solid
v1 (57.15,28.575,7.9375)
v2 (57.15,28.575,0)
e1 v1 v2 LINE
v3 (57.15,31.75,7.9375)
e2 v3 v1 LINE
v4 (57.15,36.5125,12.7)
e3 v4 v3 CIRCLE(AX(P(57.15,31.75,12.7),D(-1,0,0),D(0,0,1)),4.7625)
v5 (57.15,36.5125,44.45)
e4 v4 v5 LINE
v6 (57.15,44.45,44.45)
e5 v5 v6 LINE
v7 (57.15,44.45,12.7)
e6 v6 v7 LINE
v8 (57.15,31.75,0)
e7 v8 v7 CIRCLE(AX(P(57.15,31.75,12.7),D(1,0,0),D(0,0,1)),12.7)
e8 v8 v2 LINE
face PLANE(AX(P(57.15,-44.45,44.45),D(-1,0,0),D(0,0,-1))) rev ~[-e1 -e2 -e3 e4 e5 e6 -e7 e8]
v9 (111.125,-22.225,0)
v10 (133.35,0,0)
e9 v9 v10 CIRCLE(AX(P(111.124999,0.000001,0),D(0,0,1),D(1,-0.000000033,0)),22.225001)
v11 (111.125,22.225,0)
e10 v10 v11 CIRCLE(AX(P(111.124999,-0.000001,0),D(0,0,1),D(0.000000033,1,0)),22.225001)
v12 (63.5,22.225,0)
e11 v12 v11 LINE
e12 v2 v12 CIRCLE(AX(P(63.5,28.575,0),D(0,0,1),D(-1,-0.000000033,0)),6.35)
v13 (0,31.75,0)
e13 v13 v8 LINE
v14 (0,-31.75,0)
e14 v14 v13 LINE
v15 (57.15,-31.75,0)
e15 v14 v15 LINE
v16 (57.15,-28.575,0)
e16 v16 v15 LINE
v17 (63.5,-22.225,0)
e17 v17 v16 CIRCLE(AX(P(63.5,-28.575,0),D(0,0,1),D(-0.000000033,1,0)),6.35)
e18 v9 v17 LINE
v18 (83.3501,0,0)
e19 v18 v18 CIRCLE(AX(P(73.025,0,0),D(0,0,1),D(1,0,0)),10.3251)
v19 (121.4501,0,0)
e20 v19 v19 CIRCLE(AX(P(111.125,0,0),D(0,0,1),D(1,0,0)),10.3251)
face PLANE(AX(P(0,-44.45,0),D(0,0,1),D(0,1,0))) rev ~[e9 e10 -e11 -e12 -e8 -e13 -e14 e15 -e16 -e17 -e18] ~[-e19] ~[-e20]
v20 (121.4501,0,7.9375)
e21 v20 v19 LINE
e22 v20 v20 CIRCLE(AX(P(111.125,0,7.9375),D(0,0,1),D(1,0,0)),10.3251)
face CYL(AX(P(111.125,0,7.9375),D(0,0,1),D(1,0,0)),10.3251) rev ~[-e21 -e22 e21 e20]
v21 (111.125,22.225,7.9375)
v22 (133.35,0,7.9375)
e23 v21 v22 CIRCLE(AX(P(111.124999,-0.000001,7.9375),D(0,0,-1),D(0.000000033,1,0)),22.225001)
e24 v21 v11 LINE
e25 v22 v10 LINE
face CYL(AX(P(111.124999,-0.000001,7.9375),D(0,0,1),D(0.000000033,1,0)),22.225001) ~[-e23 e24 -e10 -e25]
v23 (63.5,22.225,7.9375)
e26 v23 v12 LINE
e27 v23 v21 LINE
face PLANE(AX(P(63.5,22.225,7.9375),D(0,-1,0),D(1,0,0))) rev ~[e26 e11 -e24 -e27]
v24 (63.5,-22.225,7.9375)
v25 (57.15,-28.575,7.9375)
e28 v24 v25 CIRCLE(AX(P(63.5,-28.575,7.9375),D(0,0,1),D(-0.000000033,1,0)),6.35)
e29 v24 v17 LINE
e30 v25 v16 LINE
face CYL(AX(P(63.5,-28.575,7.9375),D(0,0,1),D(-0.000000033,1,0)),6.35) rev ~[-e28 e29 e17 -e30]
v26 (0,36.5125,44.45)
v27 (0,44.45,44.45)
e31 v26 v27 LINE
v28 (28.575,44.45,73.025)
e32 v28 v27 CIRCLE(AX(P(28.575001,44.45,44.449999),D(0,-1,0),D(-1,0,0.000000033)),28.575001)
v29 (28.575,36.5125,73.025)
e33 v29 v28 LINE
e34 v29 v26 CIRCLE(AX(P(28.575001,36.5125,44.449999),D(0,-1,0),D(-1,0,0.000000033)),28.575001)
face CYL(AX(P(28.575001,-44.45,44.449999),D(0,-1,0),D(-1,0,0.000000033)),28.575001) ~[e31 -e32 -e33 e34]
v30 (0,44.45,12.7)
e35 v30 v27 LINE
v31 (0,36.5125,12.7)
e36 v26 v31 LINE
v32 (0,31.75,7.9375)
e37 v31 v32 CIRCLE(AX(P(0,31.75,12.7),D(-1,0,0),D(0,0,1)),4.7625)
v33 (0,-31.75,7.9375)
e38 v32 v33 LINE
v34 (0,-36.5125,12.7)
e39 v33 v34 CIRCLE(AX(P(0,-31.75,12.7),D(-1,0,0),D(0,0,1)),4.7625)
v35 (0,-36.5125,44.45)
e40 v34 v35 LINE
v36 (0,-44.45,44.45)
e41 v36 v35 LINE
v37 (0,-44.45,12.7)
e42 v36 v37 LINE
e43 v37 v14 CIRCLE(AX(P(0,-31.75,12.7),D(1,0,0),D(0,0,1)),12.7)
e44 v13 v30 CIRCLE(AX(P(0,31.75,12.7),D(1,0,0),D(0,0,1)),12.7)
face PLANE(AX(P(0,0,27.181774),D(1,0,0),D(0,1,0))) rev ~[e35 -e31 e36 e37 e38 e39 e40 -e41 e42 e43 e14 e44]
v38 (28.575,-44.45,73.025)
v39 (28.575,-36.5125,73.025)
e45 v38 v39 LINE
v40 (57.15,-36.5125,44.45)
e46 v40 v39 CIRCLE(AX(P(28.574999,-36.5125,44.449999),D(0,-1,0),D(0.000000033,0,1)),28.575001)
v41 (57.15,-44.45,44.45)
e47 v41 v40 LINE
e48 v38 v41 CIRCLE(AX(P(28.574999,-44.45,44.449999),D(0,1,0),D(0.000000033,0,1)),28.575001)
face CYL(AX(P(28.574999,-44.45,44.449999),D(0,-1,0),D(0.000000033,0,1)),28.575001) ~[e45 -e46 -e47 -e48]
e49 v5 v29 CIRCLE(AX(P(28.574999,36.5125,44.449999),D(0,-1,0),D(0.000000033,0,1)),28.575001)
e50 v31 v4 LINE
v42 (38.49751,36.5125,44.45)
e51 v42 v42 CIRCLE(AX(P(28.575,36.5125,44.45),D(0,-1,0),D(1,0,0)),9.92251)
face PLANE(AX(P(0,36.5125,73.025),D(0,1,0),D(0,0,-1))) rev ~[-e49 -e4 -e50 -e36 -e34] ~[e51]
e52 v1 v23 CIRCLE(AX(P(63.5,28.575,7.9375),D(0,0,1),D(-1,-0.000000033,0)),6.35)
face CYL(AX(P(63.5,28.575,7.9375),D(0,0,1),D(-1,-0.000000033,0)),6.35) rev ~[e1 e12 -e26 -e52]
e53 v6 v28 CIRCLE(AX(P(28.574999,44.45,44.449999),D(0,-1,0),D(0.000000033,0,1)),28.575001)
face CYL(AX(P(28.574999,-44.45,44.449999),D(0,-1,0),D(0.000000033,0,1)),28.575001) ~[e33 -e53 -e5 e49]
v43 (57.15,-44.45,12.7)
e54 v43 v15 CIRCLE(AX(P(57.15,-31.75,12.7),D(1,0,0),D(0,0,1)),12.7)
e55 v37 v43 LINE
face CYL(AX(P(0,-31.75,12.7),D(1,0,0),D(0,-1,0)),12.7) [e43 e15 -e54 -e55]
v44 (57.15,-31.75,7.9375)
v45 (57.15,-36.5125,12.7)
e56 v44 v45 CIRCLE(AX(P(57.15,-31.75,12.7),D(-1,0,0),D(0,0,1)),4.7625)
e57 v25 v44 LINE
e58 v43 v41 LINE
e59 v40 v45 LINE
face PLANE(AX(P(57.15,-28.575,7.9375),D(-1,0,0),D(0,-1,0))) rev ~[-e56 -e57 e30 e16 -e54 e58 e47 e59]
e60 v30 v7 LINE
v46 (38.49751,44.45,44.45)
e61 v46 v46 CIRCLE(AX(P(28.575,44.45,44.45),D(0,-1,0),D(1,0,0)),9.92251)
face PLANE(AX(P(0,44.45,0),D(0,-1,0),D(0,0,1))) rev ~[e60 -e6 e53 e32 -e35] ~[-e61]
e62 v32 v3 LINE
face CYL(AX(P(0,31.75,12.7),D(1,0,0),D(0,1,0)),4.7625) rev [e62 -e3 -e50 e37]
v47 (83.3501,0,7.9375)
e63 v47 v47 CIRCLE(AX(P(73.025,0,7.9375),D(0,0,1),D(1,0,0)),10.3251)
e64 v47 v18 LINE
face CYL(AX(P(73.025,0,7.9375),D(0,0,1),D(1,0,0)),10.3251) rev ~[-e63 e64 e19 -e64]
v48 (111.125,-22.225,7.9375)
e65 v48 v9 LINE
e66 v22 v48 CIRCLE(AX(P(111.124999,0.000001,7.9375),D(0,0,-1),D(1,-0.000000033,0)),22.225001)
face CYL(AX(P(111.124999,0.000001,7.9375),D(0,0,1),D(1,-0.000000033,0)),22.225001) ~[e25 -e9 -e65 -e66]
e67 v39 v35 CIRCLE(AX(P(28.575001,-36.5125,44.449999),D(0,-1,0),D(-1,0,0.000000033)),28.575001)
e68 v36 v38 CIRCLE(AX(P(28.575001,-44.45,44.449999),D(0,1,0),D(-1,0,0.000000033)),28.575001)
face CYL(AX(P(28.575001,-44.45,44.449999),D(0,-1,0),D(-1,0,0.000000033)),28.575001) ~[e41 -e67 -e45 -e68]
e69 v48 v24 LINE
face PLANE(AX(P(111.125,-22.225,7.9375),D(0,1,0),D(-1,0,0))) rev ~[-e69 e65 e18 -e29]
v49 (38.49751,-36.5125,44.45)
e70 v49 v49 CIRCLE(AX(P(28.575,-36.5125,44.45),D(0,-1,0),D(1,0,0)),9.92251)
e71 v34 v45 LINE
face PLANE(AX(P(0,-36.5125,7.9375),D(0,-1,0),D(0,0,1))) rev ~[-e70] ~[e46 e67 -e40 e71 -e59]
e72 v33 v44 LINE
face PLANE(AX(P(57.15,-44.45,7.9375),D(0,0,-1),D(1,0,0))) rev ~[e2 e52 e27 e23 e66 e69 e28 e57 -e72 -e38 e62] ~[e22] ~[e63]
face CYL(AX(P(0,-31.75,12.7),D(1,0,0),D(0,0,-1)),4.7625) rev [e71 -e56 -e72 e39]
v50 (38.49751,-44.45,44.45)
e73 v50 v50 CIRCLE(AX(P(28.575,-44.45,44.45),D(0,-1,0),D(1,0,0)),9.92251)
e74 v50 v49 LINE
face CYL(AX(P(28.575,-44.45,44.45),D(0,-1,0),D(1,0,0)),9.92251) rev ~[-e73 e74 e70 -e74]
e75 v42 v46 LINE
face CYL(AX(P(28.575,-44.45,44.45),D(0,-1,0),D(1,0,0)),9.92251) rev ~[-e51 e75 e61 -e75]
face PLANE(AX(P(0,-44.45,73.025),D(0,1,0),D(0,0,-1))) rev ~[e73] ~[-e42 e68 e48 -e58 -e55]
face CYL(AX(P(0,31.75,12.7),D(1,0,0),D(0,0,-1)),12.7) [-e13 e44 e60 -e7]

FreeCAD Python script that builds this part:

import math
import FreeCAD as App
import Part
import Sketcher

V = App.Vector
Q = App.Units.Quantity


def edges_at(feature, points):
    """Names of the edges that pass closest to the given points."""
    edges = feature.Shape.Edges
    near = lambda p: min(range(len(edges)), key=lambda i: edges[i].distToShape(Part.Vertex(*p))[0])
    return sorted({f"Edge{near(p) + 1}" for p in points})

doc = App.newDocument("Part")
body = doc.addObject("PartDesign::Body", "Body")

# Sketch on YZ plane
sketch1 = body.newObject("Sketcher::SketchObject", "Sketch")
sketch1.AttachmentSupport = (doc.getObject("YZ_Plane"), [""])
sketch1.MapMode = "FlatFace"
sketch1.addGeometry(Part.LineSegment(V(44, 0, 0), V(44, 73, 0)), False)
sketch1.addGeometry(Part.LineSegment(V(44, 73, 0), V(37, 73, 0)), False)
sketch1.addGeometry(Part.LineSegment(V(37, 73, 0), V(37, 8, 0)), False)
sketch1.addGeometry(Part.LineSegment(V(37, 8, 0), V(-37, 8, 0)), False)
sketch1.addGeometry(Part.LineSegment(V(-37, 8, 0), V(-37, 73, 0)), False)
sketch1.addGeometry(Part.LineSegment(V(-37, 73, 0), V(-44, 73, 0)), False)
sketch1.addGeometry(Part.LineSegment(V(-44, 73, 0), V(-44, 0, 0)), False)
sketch1.addGeometry(Part.LineSegment(V(-44, 0, 0), V(44, 0, 0)), False)
sketch1.addConstraint(Sketcher.Constraint("Coincident", 0, 2, 1, 1))
sketch1.addConstraint(Sketcher.Constraint("Coincident", 1, 2, 2, 1))
sketch1.addConstraint(Sketcher.Constraint("Coincident", 2, 2, 3, 1))
sketch1.addConstraint(Sketcher.Constraint("Coincident", 3, 2, 4, 1))
sketch1.addConstraint(Sketcher.Constraint("Coincident", 4, 2, 5, 1))
sketch1.addConstraint(Sketcher.Constraint("Coincident", 5, 2, 6, 1))
sketch1.addConstraint(Sketcher.Constraint("Coincident", 6, 2, 7, 1))
sketch1.addConstraint(Sketcher.Constraint("Coincident", 7, 2, 0, 1))
sketch1.addConstraint(Sketcher.Constraint("Vertical", 0))
sketch1.addConstraint(Sketcher.Constraint("Horizontal", 1))
sketch1.addConstraint(Sketcher.Constraint("Vertical", 2))
sketch1.addConstraint(Sketcher.Constraint("Horizontal", 3))
sketch1.addConstraint(Sketcher.Constraint("Vertical", 4))
sketch1.addConstraint(Sketcher.Constraint("Horizontal", 5))
sketch1.addConstraint(Sketcher.Constraint("Vertical", 6))
sketch1.addConstraint(Sketcher.Constraint("Horizontal", 7))
sketch1.addConstraint(Sketcher.Constraint("Symmetric", 6, 2, 7, 2, -1, 1))
sketch1.addConstraint(Sketcher.Constraint("Symmetric", 1, 2, 4, 2, -2))
sketch1.addConstraint(Sketcher.Constraint("Equal", 3, 0))
sketch1.addConstraint(Sketcher.Constraint("DistanceX", 7, 1, 7, 2, Q("3.5 in")))
sketch1.addConstraint(Sketcher.Constraint("DistanceX", 1, 2, 1, 1, Q("0.3125 in")))
sketch1.addConstraint(Sketcher.Constraint("DistanceY", 2, 2, 2, 1, Q("2.5625 in")))
pad1 = body.newObject("PartDesign::Pad", "Pad")
pad1.Profile = sketch1
pad1.Length = Q("5.25 in")

# Sketch on XZ plane
sketch2 = body.newObject("Sketcher::SketchObject", "Sketch001")
sketch2.AttachmentSupport = (doc.getObject("XZ_Plane"), [""])
sketch2.MapMode = "FlatFace"
sketch2.AttachmentOffset = App.Placement(V(0, 0, 1.75 * 25.4), App.Rotation())
sketch2.addGeometry(Part.ArcOfCircle(Part.Circle(V(29, 44, 0), V(0, 0, 1), 29), math.radians(90), math.radians(180)), False)
sketch2.addGeometry(Part.LineSegment(V(29, 73, 0), V(0, 73, 0)), False)
sketch2.addGeometry(Part.LineSegment(V(0, 73, 0), V(0, 44, 0)), False)
sketch2.addGeometry(Part.ArcOfCircle(Part.Circle(V(29, 44, 0), V(0, 0, 1), 29), math.radians(0), math.radians(90)), False)
sketch2.addGeometry(Part.LineSegment(V(57, 44, 0), V(57, 8, 0)), False)
sketch2.addGeometry(Part.LineSegment(V(57, 8, 0), V(133, 8, 0)), False)
sketch2.addGeometry(Part.LineSegment(V(133, 8, 0), V(133, 73, 0)), False)
sketch2.addGeometry(Part.LineSegment(V(133, 73, 0), V(29, 73, 0)), False)
sketch2.addConstraint(Sketcher.Constraint("Tangent", 0, 1, 1, 1))
sketch2.addConstraint(Sketcher.Constraint("Coincident", 1, 2, 2, 1))
sketch2.addConstraint(Sketcher.Constraint("Tangent", 2, 2, 0, 2))
sketch2.addConstraint(Sketcher.Constraint("Tangent", 3, 1, 4, 1))
sketch2.addConstraint(Sketcher.Constraint("Coincident", 4, 2, 5, 1))
sketch2.addConstraint(Sketcher.Constraint("Coincident", 5, 2, 6, 1))
sketch2.addConstraint(Sketcher.Constraint("Coincident", 6, 2, 7, 1))
sketch2.addConstraint(Sketcher.Constraint("Tangent", 7, 2, 3, 2))
sketch2.addConstraint(Sketcher.Constraint("Horizontal", 1))
sketch2.addConstraint(Sketcher.Constraint("Vertical", 2))
sketch2.addConstraint(Sketcher.Constraint("Vertical", 4))
sketch2.addConstraint(Sketcher.Constraint("Horizontal", 5))
sketch2.addConstraint(Sketcher.Constraint("Vertical", 6))
sketch2.addConstraint(Sketcher.Constraint("Horizontal", 7))
sketch2.addConstraint(Sketcher.Constraint("Coincident", 3, 3, 0, 3))
sketch2.addConstraint(Sketcher.Constraint("Equal", 0, 3))
sketch2.addConstraint(Sketcher.Constraint("PointOnObject", 1, 2, -2))
sketch2.addConstraint(Sketcher.Constraint("DistanceX", 5, 1, 5, 2, Q("3 in")))
sketch2.addConstraint(Sketcher.Constraint("Radius", 0, Q("1.125 in")))
sketch2.addConstraint(Sketcher.Constraint("DistanceY", 4, 2, 4, 1, Q("1.4375 in")))
sketch2.addConstraint(Sketcher.Constraint("DistanceY", -1, 1, 0, 3, Q("1.75 in")))
pocket1 = body.newObject("PartDesign::Pocket", "Pocket")
pocket1.Profile = sketch2
pocket1.Type = "ThroughAll"

# Sketch on XZ plane
sketch3 = body.newObject("Sketcher::SketchObject", "Sketch002")
sketch3.AttachmentSupport = (doc.getObject("XZ_Plane"), [""])
sketch3.MapMode = "FlatFace"
sketch3.AttachmentOffset = App.Placement(V(0, 0, 1.75 * 25.4), App.Rotation())
sketch3.addGeometry(Part.Circle(V(29, 44, 0), V(0, 0, 1), 10), False)
sketch3.addConstraint(Sketcher.Constraint("Diameter", 0, Q("0.7813 in")))
sketch3.addConstraint(Sketcher.Constraint("DistanceY", -1, 1, 0, 3, Q("1.75 in")))
sketch3.addConstraint(Sketcher.Constraint("DistanceX", -1, 1, 0, 3, Q("1.125 in")))
pocket2 = body.newObject("PartDesign::Pocket", "Pocket001")
pocket2.Profile = sketch3
pocket2.Type = "ThroughAll"

# Sketch on XY plane
sketch4 = body.newObject("Sketcher::SketchObject", "Sketch003")
sketch4.AttachmentSupport = (doc.getObject("XY_Plane"), [""])
sketch4.MapMode = "FlatFace"
sketch4.AttachmentOffset = App.Placement(V(0, 0, 0.3125 * 25.4), App.Rotation())
sketch4.addGeometry(Part.Circle(V(73, 0, 0), V(0, 0, 1), 10), False)
sketch4.addGeometry(Part.Circle(V(111, 0, 0), V(0, 0, 1), 10), False)
sketch4.addGeometry(Part.ArcOfCircle(Part.Circle(V(111, 0, 0), V(0, 0, 1), 22), math.radians(0), math.radians(90)), False)
sketch4.addGeometry(Part.LineSegment(V(133, 0, 0), V(133, 44, 0)), False)
sketch4.addGeometry(Part.LineSegment(V(133, 44, 0), V(57, 44, 0)), False)
sketch4.addGeometry(Part.LineSegment(V(57, 44, 0), V(57, 29, 0)), False)
sketch4.addGeometry(Part.ArcOfCircle(Part.Circle(V(64, 29, 0), V(0, 0, 1), 6), math.radians(-180), math.radians(-90)), False)
sketch4.addGeometry(Part.LineSegment(V(64, 22, 0), V(111, 22, 0)), False)
sketch4.addGeometry(Part.ArcOfCircle(Part.Circle(V(111, 0, 0), V(0, 0, 1), 22), math.radians(-90), math.radians(0)), False)
sketch4.addGeometry(Part.LineSegment(V(111, -22, 0), V(64, -22, 0)), False)
sketch4.addGeometry(Part.ArcOfCircle(Part.Circle(V(64, -29, 0), V(0, 0, 1), 6), math.radians(90), math.radians(180)), False)
sketch4.addGeometry(Part.LineSegment(V(57, -29, 0), V(57, -44, 0)), False)
sketch4.addGeometry(Part.LineSegment(V(57, -44, 0), V(133, -44, 0)), False)
sketch4.addGeometry(Part.LineSegment(V(133, -44, 0), V(133, 0, 0)), False)
sketch4.addConstraint(Sketcher.Constraint("Tangent", 2, 1, 3, 1))
sketch4.addConstraint(Sketcher.Constraint("Coincident", 3, 2, 4, 1))
sketch4.addConstraint(Sketcher.Constraint("Coincident", 4, 2, 5, 1))
sketch4.addConstraint(Sketcher.Constraint("Tangent", 5, 2, 6, 1))
sketch4.addConstraint(Sketcher.Constraint("Tangent", 6, 2, 7, 1))
sketch4.addConstraint(Sketcher.Constraint("Tangent", 7, 2, 2, 2))
sketch4.addConstraint(Sketcher.Constraint("Tangent", 8, 1, 9, 1))
sketch4.addConstraint(Sketcher.Constraint("Tangent", 9, 2, 10, 1))
sketch4.addConstraint(Sketcher.Constraint("Tangent", 10, 2, 11, 1))
sketch4.addConstraint(Sketcher.Constraint("Coincident", 11, 2, 12, 1))
sketch4.addConstraint(Sketcher.Constraint("Coincident", 12, 2, 13, 1))
sketch4.addConstraint(Sketcher.Constraint("Tangent", 13, 2, 8, 2))
sketch4.addConstraint(Sketcher.Constraint("Vertical", 3))
sketch4.addConstraint(Sketcher.Constraint("Horizontal", 4))
sketch4.addConstraint(Sketcher.Constraint("Vertical", 5))
sketch4.addConstraint(Sketcher.Constraint("Horizontal", 7))
sketch4.addConstraint(Sketcher.Constraint("Horizontal", 9))
sketch4.addConstraint(Sketcher.Constraint("Vertical", 11))
sketch4.addConstraint(Sketcher.Constraint("Horizontal", 12))
sketch4.addConstraint(Sketcher.Constraint("Vertical", 13))
sketch4.addConstraint(Sketcher.Constraint("Coincident", 2, 3, 1, 3))
sketch4.addConstraint(Sketcher.Constraint("Coincident", 8, 3, 1, 3))
sketch4.addConstraint(Sketcher.Constraint("Equal", 0, 1))
sketch4.addConstraint(Sketcher.Constraint("Equal", 2, 8))
sketch4.addConstraint(Sketcher.Constraint("Equal", 6, 10))
sketch4.addConstraint(Sketcher.Constraint("Symmetric", 6, 3, 10, 3, -1))
sketch4.addConstraint(Sketcher.Constraint("PointOnObject", 0, 3, -1))
sketch4.addConstraint(Sketcher.Constraint("Equal", 5, 11))
sketch4.addConstraint(Sketcher.Constraint("DistanceX", 4, 2, 4, 1, Q("3 in")))
sketch4.addConstraint(Sketcher.Constraint("Radius", 6, Q("0.25 in")))
sketch4.addConstraint(Sketcher.Constraint("Diameter", 0, Q("0.813 in")))
sketch4.addConstraint(Sketcher.Constraint("Radius", 2, Q("0.875 in")))
sketch4.addConstraint(Sketcher.Constraint("DistanceY", 3, 1, 3, 2, Q("1.75 in")))
sketch4.addConstraint(Sketcher.Constraint("DistanceX", -1, 1, 6, 3, Q("2.5 in")))
sketch4.addConstraint(Sketcher.Constraint("DistanceX", 0, 3, 1, 3, Q("1.5 in")))
pocket3 = body.newObject("PartDesign::Pocket", "Pocket002")
pocket3.Profile = sketch4
pocket3.Length = Q("1 in")
doc.recompute()

fillet = body.newObject("PartDesign::Fillet", "Fillet")
fillet.Base = (pocket3, edges_at(pocket3, [(28.575, 36.513, 7.938), (28.575, -36.513, 7.938)]))
fillet.Radius = Q("0.1875 in")
doc.recompute()

fillet2 = body.newObject("PartDesign::Fillet", "Fillet001")
fillet2.Base = (fillet, edges_at(fillet, [(28.575, -44.45, 0), (28.575, 44.45, 0)]))
fillet2.Radius = Q("0.5 in")

doc.recompute()
